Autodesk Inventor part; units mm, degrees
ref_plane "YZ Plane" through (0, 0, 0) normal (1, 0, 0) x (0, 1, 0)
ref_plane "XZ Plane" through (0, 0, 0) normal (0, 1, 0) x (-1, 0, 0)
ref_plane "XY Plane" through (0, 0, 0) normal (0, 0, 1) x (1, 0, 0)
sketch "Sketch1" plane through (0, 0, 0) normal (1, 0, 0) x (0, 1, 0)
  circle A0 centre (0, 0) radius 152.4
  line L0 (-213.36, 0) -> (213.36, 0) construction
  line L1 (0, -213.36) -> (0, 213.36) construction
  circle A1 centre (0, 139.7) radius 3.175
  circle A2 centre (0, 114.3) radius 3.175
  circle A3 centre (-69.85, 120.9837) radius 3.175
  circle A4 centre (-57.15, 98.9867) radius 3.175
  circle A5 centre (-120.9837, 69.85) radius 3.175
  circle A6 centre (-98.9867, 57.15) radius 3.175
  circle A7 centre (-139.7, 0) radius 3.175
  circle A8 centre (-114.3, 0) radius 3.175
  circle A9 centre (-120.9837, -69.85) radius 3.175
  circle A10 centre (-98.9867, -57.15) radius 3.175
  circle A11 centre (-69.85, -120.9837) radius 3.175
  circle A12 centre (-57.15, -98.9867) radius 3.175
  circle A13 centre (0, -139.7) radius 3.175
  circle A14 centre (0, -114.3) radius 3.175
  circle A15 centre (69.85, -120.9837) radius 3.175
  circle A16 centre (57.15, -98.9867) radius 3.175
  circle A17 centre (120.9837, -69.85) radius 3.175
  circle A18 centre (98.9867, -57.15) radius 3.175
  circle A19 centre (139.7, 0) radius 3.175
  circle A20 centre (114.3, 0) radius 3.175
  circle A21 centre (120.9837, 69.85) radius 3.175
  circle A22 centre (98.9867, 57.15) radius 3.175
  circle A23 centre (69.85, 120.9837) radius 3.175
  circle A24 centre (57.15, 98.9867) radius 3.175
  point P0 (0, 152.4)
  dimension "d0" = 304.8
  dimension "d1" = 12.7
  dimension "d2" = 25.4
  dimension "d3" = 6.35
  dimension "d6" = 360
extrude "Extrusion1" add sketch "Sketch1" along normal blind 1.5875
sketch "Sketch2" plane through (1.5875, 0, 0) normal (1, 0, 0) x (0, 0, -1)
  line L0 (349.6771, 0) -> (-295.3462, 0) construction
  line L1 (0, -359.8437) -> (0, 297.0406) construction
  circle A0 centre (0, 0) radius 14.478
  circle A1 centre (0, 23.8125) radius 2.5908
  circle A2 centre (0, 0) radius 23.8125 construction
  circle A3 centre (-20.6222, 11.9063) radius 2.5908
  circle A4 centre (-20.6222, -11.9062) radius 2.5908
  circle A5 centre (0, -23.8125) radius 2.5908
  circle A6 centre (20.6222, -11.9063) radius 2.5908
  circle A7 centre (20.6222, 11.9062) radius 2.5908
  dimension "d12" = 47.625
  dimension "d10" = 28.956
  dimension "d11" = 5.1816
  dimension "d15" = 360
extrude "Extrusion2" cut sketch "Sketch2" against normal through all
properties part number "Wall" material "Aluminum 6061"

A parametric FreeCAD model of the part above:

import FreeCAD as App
import Part
import Sketcher

V = App.Vector
Q = App.Units.Quantity

doc = App.newDocument("Part")
body = doc.addObject("PartDesign::Body", "Body")

# Sketch on YZ plane
sketch1 = body.newObject("Sketcher::SketchObject", "Sketch")
sketch1.AttachmentSupport = (doc.getObject("YZ_Plane"), [""])
sketch1.MapMode = "FlatFace"
sketch1.addGeometry([
    Part.Circle(V(0, 0, 0), V(0, 0, 1), 152.4),  # 0
    Part.Circle(V(-69.85, -120.9837, 0), V(0, 0, 1), 3.175),  # 1
    Part.Circle(V(-57.15, -98.9867, 0), V(0, 0, 1), 3.175),  # 2
    Part.Circle(V(-120.9837, -69.85, 0), V(0, 0, 1), 3.175),  # 3
    Part.Circle(V(-98.9867, -57.15, 0), V(0, 0, 1), 3.175),  # 4
    Part.Circle(V(0, -139.7, 0), V(0, 0, 1), 3.175),  # 5
    Part.Circle(V(69.85, -120.9837, 0), V(0, 0, 1), 3.175),  # 6
    Part.Circle(V(0, -114.3, 0), V(0, 0, 1), 3.175),  # 7
    Part.Circle(V(57.15, -98.9867, 0), V(0, 0, 1), 3.175),  # 8
    Part.Circle(V(98.9867, -57.15, 0), V(0, 0, 1), 3.175),  # 9
    Part.Circle(V(120.9837, -69.85, 0), V(0, 0, 1), 3.175),  # 10
    Part.Circle(V(-139.7, 0, 0), V(0, 0, 1), 3.175),  # 11
    Part.Circle(V(-114.3, 0, 0), V(0, 0, 1), 3.175),  # 12
    Part.Circle(V(-120.9837, 69.85, 0), V(0, 0, 1), 3.175),  # 13
    Part.Circle(V(-98.9867, 57.15, 0), V(0, 0, 1), 3.175),  # 14
    Part.Circle(V(-57.15, 98.9867, 0), V(0, 0, 1), 3.175),  # 15
    Part.Circle(V(-69.85, 120.9837, 0), V(0, 0, 1), 3.175),  # 16
    Part.Circle(V(114.3, 0, 0), V(0, 0, 1), 3.175),  # 17
    Part.Circle(V(139.7, 0, 0), V(0, 0, 1), 3.175),  # 18
    Part.Circle(V(98.9867, 57.15, 0), V(0, 0, 1), 3.175),  # 19
    Part.Circle(V(120.9837, 69.85, 0), V(0, 0, 1), 3.175),  # 20
    Part.Circle(V(57.15, 98.9867, 0), V(0, 0, 1), 3.175),  # 21
    Part.Circle(V(0, 114.3, 0), V(0, 0, 1), 3.175),  # 22
    Part.Circle(V(0, 139.7, 0), V(0, 0, 1), 3.175),  # 23
    Part.Circle(V(69.85, 120.9837, 0), V(0, 0, 1), 3.175),  # 24
], False)
sketch1.addConstraint([
    Sketcher.Constraint("Coincident", 0, 3, -1, 1),
    Sketcher.Constraint("Equal", 1, 2),
    Sketcher.Constraint("Equal", 2, 3),
    Sketcher.Constraint("Equal", 3, 4),
    Sketcher.Constraint("Equal", 4, 5),
    Sketcher.Constraint("Equal", 5, 6),
    Sketcher.Constraint("Equal", 6, 7),
    Sketcher.Constraint("Equal", 7, 8),
    Sketcher.Constraint("Equal", 8, 9),
    Sketcher.Constraint("Equal", 9, 10),
    Sketcher.Constraint("Equal", 10, 11),
    Sketcher.Constraint("Equal", 11, 12),
    Sketcher.Constraint("Equal", 12, 13),
    Sketcher.Constraint("Equal", 13, 14),
    Sketcher.Constraint("Equal", 14, 15),
    Sketcher.Constraint("Equal", 15, 16),
    Sketcher.Constraint("Equal", 16, 17),
    Sketcher.Constraint("Equal", 17, 18),
    Sketcher.Constraint("Equal", 18, 19),
    Sketcher.Constraint("Equal", 19, 20),
    Sketcher.Constraint("Equal", 20, 21),
    Sketcher.Constraint("Equal", 21, 22),
    Sketcher.Constraint("Equal", 22, 23),
    Sketcher.Constraint("Equal", 23, 24),
    Sketcher.Constraint("Symmetric", 10, 3, 13, 3, -1, 1),
    Sketcher.Constraint("Symmetric", 9, 3, 14, 3, -1, 1),
    Sketcher.Constraint("Symmetric", 8, 3, 15, 3, -1, 1),
    Sketcher.Constraint("Symmetric", 6, 3, 16, 3, -1, 1),
    Sketcher.Constraint("Symmetric", 12, 3, 17, 3, -1, 1),
    Sketcher.Constraint("Symmetric", 11, 3, 18, 3, -1, 1),
    Sketcher.Constraint("Symmetric", 4, 3, 19, 3, -1, 1),
    Sketcher.Constraint("Symmetric", 3, 3, 20, 3, -1, 1),
    Sketcher.Constraint("Symmetric", 2, 3, 21, 3, -1, 1),
    Sketcher.Constraint("Symmetric", 7, 3, 22, 3, -1, 1),
    Sketcher.Constraint("Symmetric", 5, 3, 23, 3, -1, 1),
    Sketcher.Constraint("Symmetric", 1, 3, 24, 3, -1, 1),
    Sketcher.Constraint("Symmetric", 1, 3, 6, 3, -2),
    Sketcher.Constraint("Symmetric", 2, 3, 8, 3, -2),
    Sketcher.Constraint("Symmetric", 4, 3, 9, 3, -2),
    Sketcher.Constraint("Symmetric", 3, 3, 10, 3, -2),
    Sketcher.Constraint("PointOnObject", 5, 3, -2),
    Sketcher.Constraint("PointOnObject", 7, 3, -2),
    Sketcher.Constraint("PointOnObject", 11, 3, -1),
    Sketcher.Constraint("PointOnObject", 12, 3, -1),
    Sketcher.Constraint("Diameter", 0, Q("12 in")),
    Sketcher.Constraint("Diameter", 1, Q("0.25 in")),
    Sketcher.Constraint("DistanceY", 5, 3, 7, 3, Q("1 in")),
    Sketcher.Constraint("DistanceX", 11, 3, 12, 3, Q("1 in")),
    Sketcher.Constraint("DistanceX", 1, 3, 2, 3, Q("0.5 in")),
    Sketcher.Constraint("DistanceY", 3, 3, 4, 3, Q("0.5 in")),
    Sketcher.Constraint("DistanceX", 2, 3, 6, 3, Q("5 in")),
    Sketcher.Constraint("DistanceY", 4, 3, 13, 3, Q("5 in")),
    Sketcher.Constraint("DistanceY", 5, 3, -1, 1, Q("5.5 in")),
    Sketcher.Constraint("DistanceX", 11, 3, -1, 1, Q("5.5 in")),
    Sketcher.Constraint("DistanceY", 1, 3, -1, 1, 120.9837),
    Sketcher.Constraint("DistanceY", 2, 3, -1, 1, 98.9867),
    Sketcher.Constraint("DistanceX", 3, 3, -1, 1, 120.9837),
    Sketcher.Constraint("DistanceX", 4, 3, -1, 1, 98.9867),
])
pad1 = body.newObject("PartDesign::Pad", "Pad")
pad1.Profile = sketch1
pad1.Length = Q("0.0625 in")

# Sketch on YZ plane
sketch2 = body.newObject("Sketcher::SketchObject", "Sketch001")
sketch2.AttachmentSupport = (doc.getObject("YZ_Plane"), [""])
sketch2.MapMode = "FlatFace"
sketch2.AttachmentOffset = App.Placement(V(0, 0, 0.0625 * 25.4), App.Rotation())
sketch2.addGeometry([
    Part.Circle(V(0, 0, 0), V(0, 0, 1), 14.478),  # 0
    Part.Circle(V(23.8125, 0, 0), V(0, 0, 1), 2.5908),  # 1
    Part.Circle(V(11.9063, 20.6222, 0), V(0, 0, 1), 2.5908),  # 2
    Part.Circle(V(-11.9062, 20.6222, 0), V(0, 0, 1), 2.5908),  # 3
    Part.Circle(V(-23.8125, 0, 0), V(0, 0, 1), 2.5908),  # 4
    Part.Circle(V(-11.9063, -20.6222, 0), V(0, 0, 1), 2.5908),  # 5
    Part.Circle(V(11.9062, -20.6222, 0), V(0, 0, 1), 2.5908),  # 6
], False)
sketch2.addConstraint([
    Sketcher.Constraint("Coincident", 0, 3, -1, 1),
    Sketcher.Constraint("Equal", 1, 2),
    Sketcher.Constraint("Equal", 2, 3),
    Sketcher.Constraint("Equal", 3, 4),
    Sketcher.Constraint("Equal", 4, 5),
    Sketcher.Constraint("Equal", 5, 6),
    Sketcher.Constraint("Symmetric", 1, 3, 4, 3, -1, 1),
    Sketcher.Constraint("Symmetric", 2, 3, 5, 3, -1, 1),
    Sketcher.Constraint("Symmetric", 3, 3, 6, 3, -1, 1),
    Sketcher.Constraint("Symmetric", 2, 3, 3, 3, -2),
    Sketcher.Constraint("PointOnObject", 1, 3, -1),
    Sketcher.Constraint("Diameter", 0, Q("1.14 in")),
    Sketcher.Constraint("Diameter", 1, Q("0.204 in")),
    Sketcher.Constraint("DistanceX", 4, 3, 1, 3, Q("1.875 in")),
    Sketcher.Constraint("DistanceX", -1, 1, 2, 3, Q("0.468752 in")),
    Sketcher.Constraint("DistanceY", -1, 1, 2, 3, Q("0.8119 in")),
])
pocket1 = body.newObject("PartDesign::Pocket", "Pocket")
pocket1.Profile = sketch2
pocket1.Type = "ThroughAll"

doc.recompute()
